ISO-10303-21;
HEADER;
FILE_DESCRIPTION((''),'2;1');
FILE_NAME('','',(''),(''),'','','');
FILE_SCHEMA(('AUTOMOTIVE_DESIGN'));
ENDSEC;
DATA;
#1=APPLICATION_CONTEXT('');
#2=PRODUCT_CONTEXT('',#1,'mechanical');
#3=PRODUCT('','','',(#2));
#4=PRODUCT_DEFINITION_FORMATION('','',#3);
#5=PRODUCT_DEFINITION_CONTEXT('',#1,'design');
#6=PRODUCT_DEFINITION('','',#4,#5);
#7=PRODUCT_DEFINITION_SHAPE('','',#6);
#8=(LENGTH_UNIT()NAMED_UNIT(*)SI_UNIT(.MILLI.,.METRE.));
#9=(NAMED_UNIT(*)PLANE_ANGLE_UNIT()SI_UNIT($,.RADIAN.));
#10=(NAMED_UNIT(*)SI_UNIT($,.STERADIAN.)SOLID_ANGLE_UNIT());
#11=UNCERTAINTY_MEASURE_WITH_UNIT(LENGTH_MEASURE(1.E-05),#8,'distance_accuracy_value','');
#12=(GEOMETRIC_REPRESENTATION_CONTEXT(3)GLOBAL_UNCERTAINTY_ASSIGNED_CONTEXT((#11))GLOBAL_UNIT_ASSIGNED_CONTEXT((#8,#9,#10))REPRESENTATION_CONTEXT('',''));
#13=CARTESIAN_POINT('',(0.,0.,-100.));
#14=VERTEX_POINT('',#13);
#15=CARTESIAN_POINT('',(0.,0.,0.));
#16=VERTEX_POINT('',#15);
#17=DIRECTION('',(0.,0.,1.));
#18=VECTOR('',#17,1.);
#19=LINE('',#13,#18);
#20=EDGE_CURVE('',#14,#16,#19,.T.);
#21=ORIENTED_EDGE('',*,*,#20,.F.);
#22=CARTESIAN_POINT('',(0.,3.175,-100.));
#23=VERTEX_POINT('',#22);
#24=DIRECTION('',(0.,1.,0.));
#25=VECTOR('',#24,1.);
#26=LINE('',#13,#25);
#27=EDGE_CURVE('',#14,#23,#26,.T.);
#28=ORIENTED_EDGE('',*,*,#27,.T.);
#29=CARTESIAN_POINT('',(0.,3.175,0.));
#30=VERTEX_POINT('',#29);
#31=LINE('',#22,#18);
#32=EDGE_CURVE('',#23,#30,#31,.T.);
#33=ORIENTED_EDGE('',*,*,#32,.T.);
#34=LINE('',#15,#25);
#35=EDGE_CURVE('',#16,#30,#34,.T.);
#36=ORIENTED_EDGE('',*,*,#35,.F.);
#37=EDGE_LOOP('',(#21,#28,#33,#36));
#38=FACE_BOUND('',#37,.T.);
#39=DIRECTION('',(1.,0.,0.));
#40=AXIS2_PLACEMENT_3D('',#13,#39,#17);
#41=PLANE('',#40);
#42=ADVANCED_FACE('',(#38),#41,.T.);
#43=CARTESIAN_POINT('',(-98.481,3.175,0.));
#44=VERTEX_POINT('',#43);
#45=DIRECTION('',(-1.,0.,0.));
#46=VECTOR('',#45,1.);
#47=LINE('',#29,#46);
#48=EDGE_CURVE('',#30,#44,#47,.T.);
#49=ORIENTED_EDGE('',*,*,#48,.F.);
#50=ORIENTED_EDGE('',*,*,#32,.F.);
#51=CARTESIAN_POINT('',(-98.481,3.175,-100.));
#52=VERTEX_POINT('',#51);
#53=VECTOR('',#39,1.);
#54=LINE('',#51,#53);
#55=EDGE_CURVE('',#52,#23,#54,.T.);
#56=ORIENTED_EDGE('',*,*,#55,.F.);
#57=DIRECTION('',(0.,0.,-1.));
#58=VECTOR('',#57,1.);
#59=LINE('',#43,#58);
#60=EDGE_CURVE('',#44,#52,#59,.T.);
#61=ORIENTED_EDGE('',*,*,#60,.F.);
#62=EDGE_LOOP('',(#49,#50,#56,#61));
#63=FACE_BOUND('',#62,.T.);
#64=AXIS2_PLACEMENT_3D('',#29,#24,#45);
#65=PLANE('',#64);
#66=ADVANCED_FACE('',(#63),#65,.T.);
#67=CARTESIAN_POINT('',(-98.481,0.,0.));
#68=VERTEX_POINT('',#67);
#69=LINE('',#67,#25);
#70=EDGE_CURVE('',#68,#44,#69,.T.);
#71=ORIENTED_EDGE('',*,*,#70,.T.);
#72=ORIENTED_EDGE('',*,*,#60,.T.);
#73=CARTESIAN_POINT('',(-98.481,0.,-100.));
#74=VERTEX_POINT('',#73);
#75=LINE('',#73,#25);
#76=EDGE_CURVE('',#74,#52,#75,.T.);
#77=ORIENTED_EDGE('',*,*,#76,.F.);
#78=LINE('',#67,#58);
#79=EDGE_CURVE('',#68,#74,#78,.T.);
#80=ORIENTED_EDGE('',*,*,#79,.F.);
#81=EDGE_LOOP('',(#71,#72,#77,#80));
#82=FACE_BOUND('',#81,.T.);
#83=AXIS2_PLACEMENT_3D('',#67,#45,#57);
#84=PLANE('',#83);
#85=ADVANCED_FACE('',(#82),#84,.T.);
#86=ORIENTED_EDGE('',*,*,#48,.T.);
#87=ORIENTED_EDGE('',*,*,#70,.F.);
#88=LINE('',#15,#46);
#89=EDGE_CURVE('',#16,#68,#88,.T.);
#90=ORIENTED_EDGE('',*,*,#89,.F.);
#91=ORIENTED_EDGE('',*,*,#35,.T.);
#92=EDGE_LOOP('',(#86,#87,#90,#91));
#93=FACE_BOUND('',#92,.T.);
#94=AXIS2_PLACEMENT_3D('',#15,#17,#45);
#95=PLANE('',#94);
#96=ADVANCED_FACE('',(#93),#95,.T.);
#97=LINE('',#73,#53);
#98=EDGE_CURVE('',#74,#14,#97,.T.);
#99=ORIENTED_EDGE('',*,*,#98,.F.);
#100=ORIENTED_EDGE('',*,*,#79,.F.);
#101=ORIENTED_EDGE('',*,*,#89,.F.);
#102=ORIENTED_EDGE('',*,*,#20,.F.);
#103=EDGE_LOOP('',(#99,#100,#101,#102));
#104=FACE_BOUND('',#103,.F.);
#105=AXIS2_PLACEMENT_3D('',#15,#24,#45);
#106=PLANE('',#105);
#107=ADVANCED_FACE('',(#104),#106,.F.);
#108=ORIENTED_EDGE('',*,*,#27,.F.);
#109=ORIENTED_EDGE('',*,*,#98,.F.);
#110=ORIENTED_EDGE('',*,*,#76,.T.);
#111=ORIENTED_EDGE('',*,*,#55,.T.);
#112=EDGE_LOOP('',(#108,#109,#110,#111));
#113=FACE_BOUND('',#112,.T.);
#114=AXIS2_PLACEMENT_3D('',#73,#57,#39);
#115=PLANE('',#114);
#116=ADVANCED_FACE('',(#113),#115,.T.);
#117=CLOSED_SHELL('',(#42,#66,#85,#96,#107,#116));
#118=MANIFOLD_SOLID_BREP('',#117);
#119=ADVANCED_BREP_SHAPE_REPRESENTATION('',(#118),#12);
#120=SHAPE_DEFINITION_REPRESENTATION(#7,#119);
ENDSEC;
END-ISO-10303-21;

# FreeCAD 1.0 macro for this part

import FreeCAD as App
import Part
import Sketcher

V = App.Vector
Q = App.Units.Quantity


def add_polygon(sketch, points):
    """Adds a closed chain of lines whose ends are joined by coincident constraints."""
    first, n = sketch.GeometryCount, len(points)
    for a, b in zip(points, points[1:] + points[:1]):
        sketch.addGeometry(Part.LineSegment(App.Vector(*a, 0), App.Vector(*b, 0)), False)
    for i in range(n):
        sketch.addConstraint(Sketcher.Constraint("Coincident", first + i, 2, first + (i + 1) % n, 1))

doc = App.newDocument("Part")
body = doc.addObject("PartDesign::Body", "Body")

# Sketch on XZ plane
sketch1 = body.newObject("Sketcher::SketchObject", "Sketch")
sketch1.AttachmentSupport = (doc.getObject("XZ_Plane"), [""])
sketch1.MapMode = "FlatFace"
add_polygon(sketch1, [(-98, 0), (0, 0), (0, -100), (-98, -100)])  # lines 0-3
sketch1.addConstraint(Sketcher.Constraint("Horizontal", 0))
sketch1.addConstraint(Sketcher.Constraint("Vertical", 1))
sketch1.addConstraint(Sketcher.Constraint("Horizontal", 2))
sketch1.addConstraint(Sketcher.Constraint("Vertical", 3))
sketch1.addConstraint(Sketcher.Constraint("Coincident", 0, 2, -1, 1))
sketch1.addConstraint(Sketcher.Constraint("DistanceY", 1, 2, 1, 1, Q("3.937 in")))
sketch1.addConstraint(Sketcher.Constraint("DistanceX", 0, 1, 0, 2, Q("3.8772 in")))
pad1 = body.newObject("PartDesign::Pad", "Pad")
pad1.Profile = sketch1
pad1.Length = Q("0.125 in")
pad1.Reversed = True

doc.recompute()
